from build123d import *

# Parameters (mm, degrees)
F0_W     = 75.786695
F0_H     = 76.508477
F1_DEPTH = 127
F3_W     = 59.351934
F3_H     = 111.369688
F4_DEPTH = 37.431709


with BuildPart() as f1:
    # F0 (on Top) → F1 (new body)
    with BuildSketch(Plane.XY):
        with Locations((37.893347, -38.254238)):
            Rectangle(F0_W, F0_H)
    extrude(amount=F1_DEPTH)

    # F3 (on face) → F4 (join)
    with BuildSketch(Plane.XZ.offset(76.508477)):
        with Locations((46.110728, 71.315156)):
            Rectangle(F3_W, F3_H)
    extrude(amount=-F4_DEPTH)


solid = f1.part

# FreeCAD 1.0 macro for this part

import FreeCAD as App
import Part
import Sketcher
from FreeCAD import Vector
Q = App.Units.Quantity

doc = App.newDocument("Part")
body = doc.addObject("PartDesign::Body", "Body")

sketch1 = body.newObject("Sketcher::SketchObject", "Sketch")
sketch1.AttachmentSupport = (doc.getObject("XY_Plane"), [""])
sketch1.MapMode = "FlatFace"
sketch1.addGeometry([
    Part.LineSegment(Vector(0, 0, 0), Vector(0, -77, 0)),
    Part.LineSegment(Vector(0, -77, 0), Vector(76, -77, 0)),
    Part.LineSegment(Vector(76, -77, 0), Vector(76, 0, 0)),
    Part.LineSegment(Vector(76, 0, 0), Vector(0, 0, 0)),
], False)
sketch1.addConstraint([
    Sketcher.Constraint("Coincident", 0, 2, 1, 1),
    Sketcher.Constraint("Coincident", 1, 2, 2, 1),
    Sketcher.Constraint("Coincident", 2, 2, 3, 1),
    Sketcher.Constraint("Coincident", 3, 2, 0, 1),
    Sketcher.Constraint("Vertical", 0),
    Sketcher.Constraint("Horizontal", 1),
    Sketcher.Constraint("Vertical", 2),
    Sketcher.Constraint("Horizontal", 3),
    Sketcher.Constraint("Coincident", 3, 2, -1, 1),
    Sketcher.Constraint("DistanceX", 1, 1, 1, 2, 75.786695),
    Sketcher.Constraint("DistanceY", 0, 2, 0, 1, 76.508477),
])
pad1 = body.newObject("PartDesign::Pad", "Pad")
pad1.Profile = sketch1
pad1.Length = Q("5 in")

sketch2 = body.newObject("Sketcher::SketchObject", "Sketch001")
sketch2.AttachmentSupport = (doc.getObject("XZ_Plane"), [""])
sketch2.MapMode = "FlatFace"
sketch2.AttachmentOffset = App.Placement(Vector(0, 0, 76.508477), App.Rotation())
sketch2.addGeometry([
    Part.LineSegment(Vector(16, 127, 0), Vector(16, 16, 0)),
    Part.LineSegment(Vector(16, 16, 0), Vector(76, 16, 0)),
    Part.LineSegment(Vector(76, 16, 0), Vector(76, 127, 0)),
    Part.LineSegment(Vector(76, 127, 0), Vector(16, 127, 0)),
], False)
sketch2.addConstraint([
    Sketcher.Constraint("Coincident", 0, 2, 1, 1),
    Sketcher.Constraint("Coincident", 1, 2, 2, 1),
    Sketcher.Constraint("Coincident", 2, 2, 3, 1),
    Sketcher.Constraint("Coincident", 3, 2, 0, 1),
    Sketcher.Constraint("Vertical", 0),
    Sketcher.Constraint("Horizontal", 1),
    Sketcher.Constraint("Vertical", 2),
    Sketcher.Constraint("Horizontal", 3),
    Sketcher.Constraint("DistanceY", -1, 1, 2, 2, Q("5 in")),
    Sketcher.Constraint("DistanceX", 1, 1, 1, 2, 59.351934),
    Sketcher.Constraint("DistanceY", 0, 2, 0, 1, 111.369688),
    Sketcher.Constraint("DistanceX", -1, 1, 0, 2, 16.434761),
])
pad2 = body.newObject("PartDesign::Pad", "Pad001")
pad2.Profile = sketch2
pad2.Length = 37.431709
pad2.Reversed = True

doc.recompute()
